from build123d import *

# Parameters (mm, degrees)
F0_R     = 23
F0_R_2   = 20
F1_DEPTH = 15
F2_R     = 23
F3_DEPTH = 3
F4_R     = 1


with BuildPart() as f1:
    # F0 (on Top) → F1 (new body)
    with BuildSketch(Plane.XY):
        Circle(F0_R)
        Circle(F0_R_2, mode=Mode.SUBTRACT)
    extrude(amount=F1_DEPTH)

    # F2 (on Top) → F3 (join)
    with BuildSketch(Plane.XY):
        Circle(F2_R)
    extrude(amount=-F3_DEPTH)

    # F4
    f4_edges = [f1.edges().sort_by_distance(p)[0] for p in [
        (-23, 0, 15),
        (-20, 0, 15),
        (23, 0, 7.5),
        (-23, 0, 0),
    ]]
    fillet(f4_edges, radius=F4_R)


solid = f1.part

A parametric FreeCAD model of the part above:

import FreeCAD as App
import Part
import Sketcher

V = App.Vector
Q = App.Units.Quantity


def edges_at(feature, points):
    """Names of the edges that pass closest to the given points."""
    edges = feature.Shape.Edges
    near = lambda p: min(range(len(edges)), key=lambda i: edges[i].distToShape(Part.Vertex(*p))[0])
    return sorted({f"Edge{near(p) + 1}" for p in points})

doc = App.newDocument("Part")
body = doc.addObject("PartDesign::Body", "Body")

sketch1 = doc.addObject("Sketcher::SketchObject", "Sketch")
body.addObject(sketch1)
sketch1.AttachmentSupport = (doc.XY_Plane, [""])
sketch1.MapMode = "FlatFace"
sketch1.addGeometry([
    Part.Circle(V(0, 0, 0), V(0, 0, 1), 23),
    Part.Circle(V(0, 0, 0), V(0, 0, 1), 20),
], False)
sketch1.addConstraint([
    Sketcher.Constraint("Coincident", 0, 3, -1, 1),
    Sketcher.Constraint("Coincident", 1, 3, -1, 1),
    Sketcher.Constraint("Diameter", 0, Q("46 mm")),
    Sketcher.Constraint("Diameter", 1, Q("40 mm")),
])
pad1 = doc.addObject("PartDesign::Pad", "Pad")
body.addObject(pad1)
pad1.Profile = sketch1
pad1.Length = 15

sketch2 = doc.addObject("Sketcher::SketchObject", "Sketch001")
body.addObject(sketch2)
sketch2.AttachmentSupport = (doc.XY_Plane, [""])
sketch2.MapMode = "FlatFace"
sketch2.addGeometry(Part.Circle(V(0, 0, 0), V(0, 0, 1), 23), False)
sketch2.addConstraint([
    Sketcher.Constraint("Coincident", 0, 3, -1, 1),
    Sketcher.Constraint("Diameter", 0, Q("46 mm")),
])
pad2 = doc.addObject("PartDesign::Pad", "Pad001")
body.addObject(pad2)
pad2.Profile = sketch2
pad2.Length = 3
pad2.Reversed = True
doc.recompute()

fillet = doc.addObject("PartDesign::Fillet", "Fillet")
body.addObject(fillet)
fillet.Base = (pad2, edges_at(pad2, [
    (-23, 0, 15),
    (-20, 0, 15),
    (23, 0, 6),
    (-23, 0, -3),
]))
fillet.Radius = 1

doc.recompute()
